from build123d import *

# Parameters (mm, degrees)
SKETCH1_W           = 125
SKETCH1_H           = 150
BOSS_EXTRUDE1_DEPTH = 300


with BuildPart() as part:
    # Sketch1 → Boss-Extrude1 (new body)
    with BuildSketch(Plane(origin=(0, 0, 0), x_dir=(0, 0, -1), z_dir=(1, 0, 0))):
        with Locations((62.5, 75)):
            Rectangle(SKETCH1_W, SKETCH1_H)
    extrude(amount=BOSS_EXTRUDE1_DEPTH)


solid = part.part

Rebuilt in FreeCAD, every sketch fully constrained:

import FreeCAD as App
import Part
import Sketcher
from FreeCAD import Vector
Q = App.Units.Quantity

doc = App.newDocument("Part")
body = doc.addObject("PartDesign::Body", "Body")

# Sketch on YZ plane
sketch1 = doc.addObject("Sketcher::SketchObject", "Sketch")
body.addObject(sketch1)
sketch1.AttachmentSupport = (doc.YZ_Plane, [""])
sketch1.MapMode = "FlatFace"
sketch1.addGeometry([
    Part.LineSegment(Vector(150, 0, 0), Vector(0, 0, 0)),
    Part.LineSegment(Vector(0, 0, 0), Vector(0, -125, 0)),
    Part.LineSegment(Vector(0, -125, 0), Vector(150, -125, 0)),
    Part.LineSegment(Vector(150, -125, 0), Vector(150, 0, 0)),
], False)
sketch1.addConstraint([
    Sketcher.Constraint("Coincident", 0, 2, 1, 1),
    Sketcher.Constraint("Coincident", 1, 2, 2, 1),
    Sketcher.Constraint("Coincident", 2, 2, 3, 1),
    Sketcher.Constraint("Coincident", 3, 2, 0, 1),
    Sketcher.Constraint("Horizontal", 0),
    Sketcher.Constraint("Vertical", 1),
    Sketcher.Constraint("Horizontal", 2),
    Sketcher.Constraint("Vertical", 3),
    Sketcher.Constraint("Coincident", 0, 2, -1, 1),
    Sketcher.Constraint("DistanceX", 0, 2, 0, 1, Q("150 mm")),
    Sketcher.Constraint("DistanceY", 1, 2, 1, 1, Q("125 mm")),
])
pad1 = doc.addObject("PartDesign::Pad", "Pad")
body.addObject(pad1)
pad1.Profile = sketch1
pad1.Length = 300

doc.recompute()
